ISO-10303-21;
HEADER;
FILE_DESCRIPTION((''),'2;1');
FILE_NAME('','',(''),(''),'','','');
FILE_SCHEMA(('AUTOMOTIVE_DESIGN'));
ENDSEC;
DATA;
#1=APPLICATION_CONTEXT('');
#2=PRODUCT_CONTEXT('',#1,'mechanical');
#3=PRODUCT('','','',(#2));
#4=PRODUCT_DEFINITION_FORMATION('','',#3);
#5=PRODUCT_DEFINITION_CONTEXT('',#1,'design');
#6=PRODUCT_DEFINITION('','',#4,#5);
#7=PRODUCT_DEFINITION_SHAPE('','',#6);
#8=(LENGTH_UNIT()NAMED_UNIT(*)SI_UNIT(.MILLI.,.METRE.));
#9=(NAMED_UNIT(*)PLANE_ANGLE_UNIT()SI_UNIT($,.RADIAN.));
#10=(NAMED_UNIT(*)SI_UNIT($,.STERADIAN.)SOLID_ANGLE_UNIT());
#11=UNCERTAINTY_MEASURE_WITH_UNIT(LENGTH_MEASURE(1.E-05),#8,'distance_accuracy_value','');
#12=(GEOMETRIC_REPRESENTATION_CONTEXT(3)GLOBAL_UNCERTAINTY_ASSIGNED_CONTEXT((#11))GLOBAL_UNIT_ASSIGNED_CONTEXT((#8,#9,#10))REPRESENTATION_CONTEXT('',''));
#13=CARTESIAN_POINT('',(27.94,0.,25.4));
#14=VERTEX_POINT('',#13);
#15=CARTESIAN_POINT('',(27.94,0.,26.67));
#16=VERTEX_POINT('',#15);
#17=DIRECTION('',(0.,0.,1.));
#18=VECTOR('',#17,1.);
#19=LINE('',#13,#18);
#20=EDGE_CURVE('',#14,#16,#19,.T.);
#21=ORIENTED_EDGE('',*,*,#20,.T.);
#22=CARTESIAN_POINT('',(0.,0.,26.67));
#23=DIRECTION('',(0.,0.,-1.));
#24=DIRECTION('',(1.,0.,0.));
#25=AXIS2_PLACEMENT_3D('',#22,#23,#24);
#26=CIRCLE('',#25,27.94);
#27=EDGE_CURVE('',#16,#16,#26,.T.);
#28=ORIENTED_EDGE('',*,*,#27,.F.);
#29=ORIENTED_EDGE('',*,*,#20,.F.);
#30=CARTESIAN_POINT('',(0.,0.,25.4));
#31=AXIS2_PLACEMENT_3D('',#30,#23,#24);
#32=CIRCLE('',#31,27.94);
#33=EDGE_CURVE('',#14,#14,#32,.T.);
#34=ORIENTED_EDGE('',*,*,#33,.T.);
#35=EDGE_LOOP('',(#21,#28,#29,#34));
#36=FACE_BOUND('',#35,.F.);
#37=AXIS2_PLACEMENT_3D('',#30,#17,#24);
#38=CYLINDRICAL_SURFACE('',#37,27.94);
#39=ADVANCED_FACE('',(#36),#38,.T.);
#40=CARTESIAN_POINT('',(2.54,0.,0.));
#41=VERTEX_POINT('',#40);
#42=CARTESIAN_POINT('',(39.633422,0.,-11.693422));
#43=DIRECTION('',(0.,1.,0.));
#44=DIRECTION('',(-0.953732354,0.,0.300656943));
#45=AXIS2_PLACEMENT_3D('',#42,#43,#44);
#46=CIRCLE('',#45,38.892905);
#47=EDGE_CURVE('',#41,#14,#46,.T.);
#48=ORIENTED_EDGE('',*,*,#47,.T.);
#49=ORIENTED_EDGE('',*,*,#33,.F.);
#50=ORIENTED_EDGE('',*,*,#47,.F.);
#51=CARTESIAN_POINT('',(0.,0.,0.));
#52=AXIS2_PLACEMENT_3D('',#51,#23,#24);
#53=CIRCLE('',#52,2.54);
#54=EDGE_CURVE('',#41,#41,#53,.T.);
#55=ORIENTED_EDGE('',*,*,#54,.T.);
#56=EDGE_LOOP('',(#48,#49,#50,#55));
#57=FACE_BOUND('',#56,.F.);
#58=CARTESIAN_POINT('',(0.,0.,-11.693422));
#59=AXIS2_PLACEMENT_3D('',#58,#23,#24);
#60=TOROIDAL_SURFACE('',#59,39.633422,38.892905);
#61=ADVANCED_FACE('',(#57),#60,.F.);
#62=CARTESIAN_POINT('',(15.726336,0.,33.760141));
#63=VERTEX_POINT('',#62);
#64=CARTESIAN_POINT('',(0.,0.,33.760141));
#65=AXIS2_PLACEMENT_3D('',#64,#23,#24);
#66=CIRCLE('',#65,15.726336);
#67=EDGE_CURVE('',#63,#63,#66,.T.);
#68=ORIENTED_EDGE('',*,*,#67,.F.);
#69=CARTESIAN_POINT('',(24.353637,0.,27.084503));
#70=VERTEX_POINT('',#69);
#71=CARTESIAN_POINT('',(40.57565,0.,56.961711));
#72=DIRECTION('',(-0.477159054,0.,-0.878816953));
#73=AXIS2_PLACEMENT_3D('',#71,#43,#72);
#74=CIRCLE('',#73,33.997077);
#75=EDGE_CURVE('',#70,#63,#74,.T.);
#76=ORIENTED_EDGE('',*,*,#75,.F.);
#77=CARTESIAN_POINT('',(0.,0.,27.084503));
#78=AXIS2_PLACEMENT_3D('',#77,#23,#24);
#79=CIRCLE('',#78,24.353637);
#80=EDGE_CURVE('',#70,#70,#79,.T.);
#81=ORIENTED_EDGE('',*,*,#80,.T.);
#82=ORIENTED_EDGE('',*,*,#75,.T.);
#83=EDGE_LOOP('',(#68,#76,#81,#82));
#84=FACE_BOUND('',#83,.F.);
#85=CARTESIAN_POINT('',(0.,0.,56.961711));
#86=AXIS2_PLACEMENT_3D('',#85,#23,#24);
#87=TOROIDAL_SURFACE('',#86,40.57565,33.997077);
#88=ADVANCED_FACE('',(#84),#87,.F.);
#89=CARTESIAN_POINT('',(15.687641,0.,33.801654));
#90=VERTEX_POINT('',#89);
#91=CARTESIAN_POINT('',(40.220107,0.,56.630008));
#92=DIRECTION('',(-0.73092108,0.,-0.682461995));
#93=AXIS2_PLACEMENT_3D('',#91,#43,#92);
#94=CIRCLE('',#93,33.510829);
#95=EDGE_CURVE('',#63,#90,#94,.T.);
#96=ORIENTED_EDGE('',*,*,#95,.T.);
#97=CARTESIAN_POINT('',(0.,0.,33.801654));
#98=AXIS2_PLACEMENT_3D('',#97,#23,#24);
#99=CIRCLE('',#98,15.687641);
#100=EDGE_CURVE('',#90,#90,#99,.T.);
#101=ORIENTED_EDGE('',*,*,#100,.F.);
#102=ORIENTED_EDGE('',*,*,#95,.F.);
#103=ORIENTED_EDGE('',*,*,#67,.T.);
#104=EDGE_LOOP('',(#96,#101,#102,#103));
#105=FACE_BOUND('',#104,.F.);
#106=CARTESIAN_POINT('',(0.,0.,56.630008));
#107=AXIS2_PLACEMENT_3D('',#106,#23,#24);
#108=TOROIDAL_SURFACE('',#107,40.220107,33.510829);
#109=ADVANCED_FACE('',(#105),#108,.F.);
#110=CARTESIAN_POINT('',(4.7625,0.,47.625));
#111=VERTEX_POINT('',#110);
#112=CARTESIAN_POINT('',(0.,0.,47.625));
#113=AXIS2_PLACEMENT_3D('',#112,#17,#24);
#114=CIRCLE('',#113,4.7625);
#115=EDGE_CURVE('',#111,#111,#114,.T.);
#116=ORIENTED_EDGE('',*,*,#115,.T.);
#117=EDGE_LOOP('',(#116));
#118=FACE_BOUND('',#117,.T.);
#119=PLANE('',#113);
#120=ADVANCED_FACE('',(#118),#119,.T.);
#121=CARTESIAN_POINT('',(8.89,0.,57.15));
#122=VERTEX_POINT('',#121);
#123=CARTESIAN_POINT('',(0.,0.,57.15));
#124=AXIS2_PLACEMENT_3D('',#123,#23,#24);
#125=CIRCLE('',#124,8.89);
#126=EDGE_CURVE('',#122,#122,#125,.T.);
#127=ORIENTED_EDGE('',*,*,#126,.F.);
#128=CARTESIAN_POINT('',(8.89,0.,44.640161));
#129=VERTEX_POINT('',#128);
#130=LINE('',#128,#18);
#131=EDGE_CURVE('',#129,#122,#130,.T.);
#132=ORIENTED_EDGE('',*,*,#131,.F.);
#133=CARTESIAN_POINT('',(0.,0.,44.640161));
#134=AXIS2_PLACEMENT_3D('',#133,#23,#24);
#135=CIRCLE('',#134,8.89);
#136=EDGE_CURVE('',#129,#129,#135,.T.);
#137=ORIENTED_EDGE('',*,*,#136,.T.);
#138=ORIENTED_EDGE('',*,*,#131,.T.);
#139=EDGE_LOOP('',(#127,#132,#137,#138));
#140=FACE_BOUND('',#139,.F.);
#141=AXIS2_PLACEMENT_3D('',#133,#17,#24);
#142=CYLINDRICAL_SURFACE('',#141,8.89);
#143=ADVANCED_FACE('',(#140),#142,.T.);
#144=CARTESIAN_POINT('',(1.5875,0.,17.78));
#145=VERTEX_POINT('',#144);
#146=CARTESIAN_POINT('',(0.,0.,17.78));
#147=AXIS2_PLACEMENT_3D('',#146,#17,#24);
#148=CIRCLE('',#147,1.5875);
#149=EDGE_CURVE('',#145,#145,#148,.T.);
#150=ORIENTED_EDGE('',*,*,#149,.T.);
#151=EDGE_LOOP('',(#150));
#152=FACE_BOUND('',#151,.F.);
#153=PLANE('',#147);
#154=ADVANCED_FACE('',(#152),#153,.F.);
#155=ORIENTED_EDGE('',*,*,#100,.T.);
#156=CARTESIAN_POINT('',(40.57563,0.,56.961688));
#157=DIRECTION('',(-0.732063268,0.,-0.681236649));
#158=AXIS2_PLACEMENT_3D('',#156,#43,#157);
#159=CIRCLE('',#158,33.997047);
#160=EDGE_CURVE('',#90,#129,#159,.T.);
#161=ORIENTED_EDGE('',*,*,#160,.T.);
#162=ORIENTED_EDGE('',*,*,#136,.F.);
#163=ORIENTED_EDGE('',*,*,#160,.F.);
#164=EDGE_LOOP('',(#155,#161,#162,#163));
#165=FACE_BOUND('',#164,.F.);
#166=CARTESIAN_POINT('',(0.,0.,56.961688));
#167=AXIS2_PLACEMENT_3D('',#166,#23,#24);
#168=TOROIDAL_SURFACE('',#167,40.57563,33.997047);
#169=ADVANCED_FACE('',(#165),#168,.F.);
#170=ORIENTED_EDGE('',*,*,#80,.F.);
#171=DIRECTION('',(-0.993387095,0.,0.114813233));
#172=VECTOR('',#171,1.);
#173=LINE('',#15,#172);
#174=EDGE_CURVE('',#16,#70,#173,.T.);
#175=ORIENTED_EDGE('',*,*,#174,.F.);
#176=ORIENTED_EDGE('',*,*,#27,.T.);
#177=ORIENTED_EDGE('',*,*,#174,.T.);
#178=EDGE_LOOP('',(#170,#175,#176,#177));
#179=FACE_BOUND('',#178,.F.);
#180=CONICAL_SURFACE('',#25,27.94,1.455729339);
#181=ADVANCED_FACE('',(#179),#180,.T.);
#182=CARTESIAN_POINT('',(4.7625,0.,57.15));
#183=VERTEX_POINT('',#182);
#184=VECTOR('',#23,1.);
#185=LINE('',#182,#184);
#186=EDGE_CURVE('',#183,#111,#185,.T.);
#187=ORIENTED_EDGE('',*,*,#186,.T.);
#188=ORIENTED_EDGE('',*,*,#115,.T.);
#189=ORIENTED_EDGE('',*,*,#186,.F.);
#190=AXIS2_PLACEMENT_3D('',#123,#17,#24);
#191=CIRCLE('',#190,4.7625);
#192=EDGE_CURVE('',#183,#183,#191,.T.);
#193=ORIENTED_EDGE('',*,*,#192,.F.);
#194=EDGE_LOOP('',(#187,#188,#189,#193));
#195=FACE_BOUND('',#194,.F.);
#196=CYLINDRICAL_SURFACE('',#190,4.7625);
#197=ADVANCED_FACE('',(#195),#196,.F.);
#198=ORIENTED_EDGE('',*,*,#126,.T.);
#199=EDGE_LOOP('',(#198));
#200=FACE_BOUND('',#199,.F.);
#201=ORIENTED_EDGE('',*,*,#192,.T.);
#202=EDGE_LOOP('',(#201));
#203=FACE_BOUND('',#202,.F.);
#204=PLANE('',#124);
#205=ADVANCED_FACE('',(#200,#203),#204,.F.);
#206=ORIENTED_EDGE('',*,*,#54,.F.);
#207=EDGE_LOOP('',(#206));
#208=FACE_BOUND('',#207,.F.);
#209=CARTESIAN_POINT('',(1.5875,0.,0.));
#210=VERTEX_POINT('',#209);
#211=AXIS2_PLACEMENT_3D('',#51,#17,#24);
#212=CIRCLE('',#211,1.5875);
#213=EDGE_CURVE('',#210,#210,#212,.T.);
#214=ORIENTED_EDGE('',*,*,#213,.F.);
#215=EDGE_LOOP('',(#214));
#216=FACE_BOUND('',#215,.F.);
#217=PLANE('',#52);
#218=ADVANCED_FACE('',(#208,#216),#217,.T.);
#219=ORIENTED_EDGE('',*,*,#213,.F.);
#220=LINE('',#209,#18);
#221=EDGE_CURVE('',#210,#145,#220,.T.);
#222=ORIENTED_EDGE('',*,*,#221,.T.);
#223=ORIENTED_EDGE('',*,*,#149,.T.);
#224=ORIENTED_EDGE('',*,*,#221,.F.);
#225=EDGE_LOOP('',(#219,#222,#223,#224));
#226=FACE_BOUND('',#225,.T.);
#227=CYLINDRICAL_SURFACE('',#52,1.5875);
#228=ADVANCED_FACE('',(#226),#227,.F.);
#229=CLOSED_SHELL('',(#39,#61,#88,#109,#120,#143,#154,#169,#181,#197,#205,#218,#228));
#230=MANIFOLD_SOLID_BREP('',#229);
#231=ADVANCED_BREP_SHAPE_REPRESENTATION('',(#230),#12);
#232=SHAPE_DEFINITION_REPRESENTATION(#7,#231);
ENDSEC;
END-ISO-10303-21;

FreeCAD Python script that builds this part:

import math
import FreeCAD as App
import Part
import Sketcher
from FreeCAD import Vector
Q = App.Units.Quantity

doc = App.newDocument("Part")
body = doc.addObject("PartDesign::Body", "Body")

# Sketch on XZ plane
sketch1 = body.newObject("Sketcher::SketchObject", "Sketch")
sketch1.AttachmentSupport = (doc.getObject("XZ_Plane"), [""])
sketch1.MapMode = "FlatFace"
sketch1.addGeometry(Part.ArcOfCircle(Part.Circle(Vector(39.633422, -11.693422, 0), Vector(0, 0, 1), 38.892905), math.radians(107.497065), math.radians(162.502935)), False)
sketch1.addGeometry(Part.LineSegment(Vector(27.94, 25.4, 0), Vector(27.94, 26.67, 0)), False)
sketch1.addGeometry(Part.LineSegment(Vector(27.94, 26.67, 0), Vector(24.353637, 27.084503, 0)), False)
sketch1.addGeometry(Part.ArcOfCircle(Part.Circle(Vector(40.57565, 56.961711, 0), Vector(0, 0, 1), 33.997077), math.radians(-136.963998), math.radians(-118.500019)), False)
sketch1.addGeometry(Part.ArcOfCircle(Part.Circle(Vector(40.220107, 56.630008, 0), Vector(0, 0, 1), 33.510829), math.radians(-137.060698), math.radians(-136.963667)), False)
sketch1.addGeometry(Part.ArcOfCircle(Part.Circle(Vector(40.57563, 56.961688, 0), Vector(0, 0, 1), 33.997047), math.radians(-158.750535), math.radians(-137.059645)), False)
sketch1.addGeometry(Part.LineSegment(Vector(8.89, 44.640161, 0), Vector(8.89, 57.15, 0)), False)
sketch1.addGeometry(Part.LineSegment(Vector(8.89, 57.15, 0), Vector(0, 57.15, 0)), False)
sketch1.addGeometry(Part.LineSegment(Vector(0, 57.15, 0), Vector(0, 0, 0)), False)
sketch1.addGeometry(Part.LineSegment(Vector(0, 0, 0), Vector(2.54, 0, 0)), False)
sketch1.addConstraint(Sketcher.Constraint("Coincident", 0, 1, 1, 1))
sketch1.addConstraint(Sketcher.Constraint("Coincident", 1, 2, 2, 1))
sketch1.addConstraint(Sketcher.Constraint("Coincident", 2, 2, 3, 2))
sketch1.addConstraint(Sketcher.Constraint("Coincident", 3, 1, 4, 2))
sketch1.addConstraint(Sketcher.Constraint("Coincident", 4, 1, 5, 2))
sketch1.addConstraint(Sketcher.Constraint("Coincident", 5, 1, 6, 1))
sketch1.addConstraint(Sketcher.Constraint("Coincident", 6, 2, 7, 1))
sketch1.addConstraint(Sketcher.Constraint("Coincident", 7, 2, 8, 1))
sketch1.addConstraint(Sketcher.Constraint("Coincident", 8, 2, 9, 1))
sketch1.addConstraint(Sketcher.Constraint("Coincident", 9, 2, 0, 2))
sketch1.addConstraint(Sketcher.Constraint("Vertical", 1))
sketch1.addConstraint(Sketcher.Constraint("Vertical", 6))
sketch1.addConstraint(Sketcher.Constraint("Horizontal", 7))
sketch1.addConstraint(Sketcher.Constraint("Vertical", 8))
sketch1.addConstraint(Sketcher.Constraint("Horizontal", 9))
sketch1.addConstraint(Sketcher.Constraint("Coincident", 8, 2, -1, 1))
sketch1.addConstraint(Sketcher.Constraint("DistanceX", 9, 1, 9, 2, Q("0.1 in")))
sketch1.addConstraint(Sketcher.Constraint("DistanceY", -1, 1, 0, 1, Q("1 in")))
sketch1.addConstraint(Sketcher.Constraint("DistanceX", 9, 2, 0, 1, Q("1 in")))
sketch1.addConstraint(Sketcher.Constraint("DistanceX", 7, 2, 7, 1, Q("0.35 in")))
sketch1.addConstraint(Sketcher.Constraint("DistanceY", 1, 1, 1, 2, Q("0.05 in")))
sketch1.addConstraint(Sketcher.Constraint("DistanceY", 8, 2, 8, 1, Q("2.25 in")))
sketch1.addConstraint(Sketcher.Constraint("Radius", 4, 33.510829))
sketch1.addConstraint(Sketcher.Constraint("Radius", 0, 38.892905))
sketch1.addConstraint(Sketcher.Constraint("Radius", 3, 33.997077))
sketch1.addConstraint(Sketcher.Constraint("Radius", 5, 33.997047))
sketch1.addConstraint(Sketcher.Constraint("DistanceY", 6, 1, 6, 2, 12.509839))
sketch1.addConstraint(Sketcher.Constraint("DistanceX", 3, 1, 2, 2, 8.627301))
sketch1.addConstraint(Sketcher.Constraint("DistanceX", -1, 1, 3, 3, 40.57565))
sketch1.addConstraint(Sketcher.Constraint("DistanceY", -1, 1, 3, 3, 56.961711))
sketch1.addConstraint(Sketcher.Constraint("DistanceY", -1, 1, 4, 3, 56.630008))
sketch1.addConstraint(Sketcher.Constraint("DistanceY", -1, 1, 3, 1, 33.760141))
sketch1.addConstraint(Sketcher.Constraint("DistanceX", -1, 1, 4, 1, 15.687641))
revolution = body.newObject("PartDesign::Revolution", "Revolution")
revolution.Profile = sketch1
revolution.ReferenceAxis = (sketch1, ["V_Axis"])
revolution.Angle = 360

# Sketch on XY plane
sketch2 = body.newObject("Sketcher::SketchObject", "Sketch001")
sketch2.AttachmentSupport = (doc.getObject("XY_Plane"), [""])
sketch2.MapMode = "FlatFace"
sketch2.addGeometry(Part.Circle(Vector(0, 0, 0), Vector(0, 0, 1), 1.5875), False)
sketch2.addConstraint(Sketcher.Constraint("Coincident", 0, 3, -1, 1))
sketch2.addConstraint(Sketcher.Constraint("Diameter", 0, Q("0.125 in")))
pocket1 = body.newObject("PartDesign::Pocket", "Pocket")
pocket1.Profile = sketch2
pocket1.Length = Q("0.7 in")
pocket1.Reversed = True

# Sketch on XY plane
sketch3 = body.newObject("Sketcher::SketchObject", "Sketch002")
sketch3.AttachmentSupport = (doc.getObject("XY_Plane"), [""])
sketch3.MapMode = "FlatFace"
sketch3.AttachmentOffset = App.Placement(Vector(0, 0, 2.25 * 25.4), App.Rotation())
sketch3.addGeometry(Part.Circle(Vector(0, 0, 0), Vector(0, 0, 1), 4.7625), False)
sketch3.addConstraint(Sketcher.Constraint("Coincident", 0, 3, -1, 1))
sketch3.addConstraint(Sketcher.Constraint("Diameter", 0, Q("0.375 in")))
pocket2 = body.newObject("PartDesign::Pocket", "Pocket001")
pocket2.Profile = sketch3
pocket2.Length = Q("0.375 in")

doc.recompute()
